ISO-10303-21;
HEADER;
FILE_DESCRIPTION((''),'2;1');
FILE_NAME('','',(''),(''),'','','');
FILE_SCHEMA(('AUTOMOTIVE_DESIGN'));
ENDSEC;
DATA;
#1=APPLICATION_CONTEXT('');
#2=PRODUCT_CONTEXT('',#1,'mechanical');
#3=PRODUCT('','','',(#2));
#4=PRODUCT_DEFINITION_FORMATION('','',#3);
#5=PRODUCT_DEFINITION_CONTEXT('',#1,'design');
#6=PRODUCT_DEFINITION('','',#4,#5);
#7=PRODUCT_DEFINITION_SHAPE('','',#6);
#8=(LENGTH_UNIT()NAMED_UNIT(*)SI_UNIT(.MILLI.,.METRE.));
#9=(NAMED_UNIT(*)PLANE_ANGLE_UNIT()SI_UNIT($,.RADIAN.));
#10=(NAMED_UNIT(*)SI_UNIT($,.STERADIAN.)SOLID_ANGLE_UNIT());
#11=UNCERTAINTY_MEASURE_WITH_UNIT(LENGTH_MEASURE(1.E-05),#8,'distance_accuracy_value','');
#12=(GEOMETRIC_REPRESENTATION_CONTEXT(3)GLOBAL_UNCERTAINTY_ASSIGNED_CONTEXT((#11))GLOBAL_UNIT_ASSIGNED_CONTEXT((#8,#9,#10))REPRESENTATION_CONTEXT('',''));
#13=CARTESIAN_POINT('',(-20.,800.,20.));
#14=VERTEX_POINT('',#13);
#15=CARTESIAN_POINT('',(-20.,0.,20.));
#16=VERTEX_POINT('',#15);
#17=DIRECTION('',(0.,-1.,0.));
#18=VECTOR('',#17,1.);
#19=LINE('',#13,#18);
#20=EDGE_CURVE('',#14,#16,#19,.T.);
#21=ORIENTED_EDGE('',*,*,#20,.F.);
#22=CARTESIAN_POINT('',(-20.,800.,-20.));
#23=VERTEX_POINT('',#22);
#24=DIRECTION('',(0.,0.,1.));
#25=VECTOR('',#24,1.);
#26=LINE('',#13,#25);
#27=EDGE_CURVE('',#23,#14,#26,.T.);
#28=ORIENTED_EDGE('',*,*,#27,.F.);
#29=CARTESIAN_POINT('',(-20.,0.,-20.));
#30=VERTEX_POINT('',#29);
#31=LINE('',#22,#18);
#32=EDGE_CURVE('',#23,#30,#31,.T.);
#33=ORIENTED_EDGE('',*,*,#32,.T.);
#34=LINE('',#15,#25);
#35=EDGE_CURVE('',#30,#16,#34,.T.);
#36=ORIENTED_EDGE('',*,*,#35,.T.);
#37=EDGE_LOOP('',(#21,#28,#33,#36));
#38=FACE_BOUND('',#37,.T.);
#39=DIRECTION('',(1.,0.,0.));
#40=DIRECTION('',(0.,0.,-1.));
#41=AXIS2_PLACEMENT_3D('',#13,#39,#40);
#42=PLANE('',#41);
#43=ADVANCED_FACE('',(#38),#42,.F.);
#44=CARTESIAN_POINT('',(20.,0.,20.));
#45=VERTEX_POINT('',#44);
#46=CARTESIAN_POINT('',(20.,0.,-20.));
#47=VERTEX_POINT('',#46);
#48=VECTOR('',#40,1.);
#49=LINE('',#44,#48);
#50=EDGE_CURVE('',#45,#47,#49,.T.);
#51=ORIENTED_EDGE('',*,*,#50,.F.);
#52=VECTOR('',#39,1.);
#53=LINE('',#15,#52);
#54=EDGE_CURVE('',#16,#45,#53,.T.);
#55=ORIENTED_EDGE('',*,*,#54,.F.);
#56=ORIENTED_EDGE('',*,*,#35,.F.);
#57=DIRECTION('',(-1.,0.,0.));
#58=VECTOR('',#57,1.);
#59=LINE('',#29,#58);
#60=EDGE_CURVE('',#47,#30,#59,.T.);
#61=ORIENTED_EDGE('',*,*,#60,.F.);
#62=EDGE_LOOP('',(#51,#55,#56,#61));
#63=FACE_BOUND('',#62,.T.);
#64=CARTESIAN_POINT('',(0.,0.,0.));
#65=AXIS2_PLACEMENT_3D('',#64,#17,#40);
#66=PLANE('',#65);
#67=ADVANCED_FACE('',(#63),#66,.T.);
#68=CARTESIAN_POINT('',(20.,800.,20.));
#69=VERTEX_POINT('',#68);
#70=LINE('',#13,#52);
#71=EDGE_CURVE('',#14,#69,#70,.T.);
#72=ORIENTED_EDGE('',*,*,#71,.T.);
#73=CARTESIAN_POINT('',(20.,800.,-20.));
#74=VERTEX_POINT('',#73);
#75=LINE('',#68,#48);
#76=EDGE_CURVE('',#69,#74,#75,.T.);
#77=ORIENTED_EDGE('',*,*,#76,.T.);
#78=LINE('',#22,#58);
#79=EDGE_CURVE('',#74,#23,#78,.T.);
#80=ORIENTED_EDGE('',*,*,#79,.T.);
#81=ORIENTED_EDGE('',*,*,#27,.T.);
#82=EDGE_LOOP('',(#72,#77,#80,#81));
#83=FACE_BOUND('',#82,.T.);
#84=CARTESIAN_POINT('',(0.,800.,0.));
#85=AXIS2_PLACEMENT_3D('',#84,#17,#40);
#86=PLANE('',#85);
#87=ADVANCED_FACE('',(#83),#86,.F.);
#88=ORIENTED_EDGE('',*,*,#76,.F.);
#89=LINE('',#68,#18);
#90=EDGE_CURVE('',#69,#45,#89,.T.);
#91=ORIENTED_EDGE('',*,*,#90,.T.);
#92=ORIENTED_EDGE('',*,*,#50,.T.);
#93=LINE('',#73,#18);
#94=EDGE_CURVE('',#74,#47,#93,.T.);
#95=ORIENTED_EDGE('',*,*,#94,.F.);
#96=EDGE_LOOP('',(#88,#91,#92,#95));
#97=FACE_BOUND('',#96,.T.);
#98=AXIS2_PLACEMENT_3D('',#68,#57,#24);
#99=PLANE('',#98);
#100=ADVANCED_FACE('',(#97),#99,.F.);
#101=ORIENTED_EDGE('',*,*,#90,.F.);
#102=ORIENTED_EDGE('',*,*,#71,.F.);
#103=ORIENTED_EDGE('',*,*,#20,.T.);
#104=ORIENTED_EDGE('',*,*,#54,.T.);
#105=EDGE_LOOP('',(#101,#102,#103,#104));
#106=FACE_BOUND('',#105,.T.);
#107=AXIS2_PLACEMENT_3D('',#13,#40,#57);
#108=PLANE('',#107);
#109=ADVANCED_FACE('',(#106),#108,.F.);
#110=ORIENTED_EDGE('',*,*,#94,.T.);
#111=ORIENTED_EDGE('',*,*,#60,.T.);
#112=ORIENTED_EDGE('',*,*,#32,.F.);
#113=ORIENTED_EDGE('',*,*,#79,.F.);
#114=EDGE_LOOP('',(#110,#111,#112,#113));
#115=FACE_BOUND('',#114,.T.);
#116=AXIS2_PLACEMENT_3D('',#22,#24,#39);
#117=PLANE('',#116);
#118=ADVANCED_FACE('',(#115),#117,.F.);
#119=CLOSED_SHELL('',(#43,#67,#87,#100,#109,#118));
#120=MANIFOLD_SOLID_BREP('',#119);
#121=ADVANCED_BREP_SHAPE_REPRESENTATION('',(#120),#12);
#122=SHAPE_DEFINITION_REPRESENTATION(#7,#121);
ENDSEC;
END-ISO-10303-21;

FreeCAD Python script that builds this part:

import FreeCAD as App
import Part
import Sketcher

V = App.Vector

doc = App.newDocument("Part")
body = doc.addObject("PartDesign::Body", "Body")

# Sketch on XZ plane
sketch1 = body.newObject("Sketcher::SketchObject", "Sketch")
sketch1.AttachmentSupport = (doc.getObject("XZ_Plane"), [""])
sketch1.MapMode = "FlatFace"
sketch1.addGeometry(Part.LineSegment(V(-20, -20, 0), V(-20, 20, 0)), False)
sketch1.addGeometry(Part.LineSegment(V(-20, 20, 0), V(20, 20, 0)), False)
sketch1.addGeometry(Part.LineSegment(V(20, 20, 0), V(20, -20, 0)), False)
sketch1.addGeometry(Part.LineSegment(V(20, -20, 0), V(-20, -20, 0)), False)
sketch1.addConstraint(Sketcher.Constraint("Coincident", 0, 2, 1, 1))
sketch1.addConstraint(Sketcher.Constraint("Coincident", 1, 2, 2, 1))
sketch1.addConstraint(Sketcher.Constraint("Coincident", 2, 2, 3, 1))
sketch1.addConstraint(Sketcher.Constraint("Coincident", 3, 2, 0, 1))
sketch1.addConstraint(Sketcher.Constraint("Vertical", 0))
sketch1.addConstraint(Sketcher.Constraint("Horizontal", 1))
sketch1.addConstraint(Sketcher.Constraint("Vertical", 2))
sketch1.addConstraint(Sketcher.Constraint("Horizontal", 3))
sketch1.addConstraint(Sketcher.Constraint("Symmetric", 0, 2, 2, 2, -1, 1))
sketch1.addConstraint(Sketcher.Constraint("Equal", 3, 0))
sketch1.addConstraint(Sketcher.Constraint("DistanceX", 1, 1, 1, 2, 40.0))
pad1 = body.newObject("PartDesign::Pad", "Pad")
pad1.Profile = sketch1
pad1.Length = 800
pad1.Reversed = True

doc.recompute()
